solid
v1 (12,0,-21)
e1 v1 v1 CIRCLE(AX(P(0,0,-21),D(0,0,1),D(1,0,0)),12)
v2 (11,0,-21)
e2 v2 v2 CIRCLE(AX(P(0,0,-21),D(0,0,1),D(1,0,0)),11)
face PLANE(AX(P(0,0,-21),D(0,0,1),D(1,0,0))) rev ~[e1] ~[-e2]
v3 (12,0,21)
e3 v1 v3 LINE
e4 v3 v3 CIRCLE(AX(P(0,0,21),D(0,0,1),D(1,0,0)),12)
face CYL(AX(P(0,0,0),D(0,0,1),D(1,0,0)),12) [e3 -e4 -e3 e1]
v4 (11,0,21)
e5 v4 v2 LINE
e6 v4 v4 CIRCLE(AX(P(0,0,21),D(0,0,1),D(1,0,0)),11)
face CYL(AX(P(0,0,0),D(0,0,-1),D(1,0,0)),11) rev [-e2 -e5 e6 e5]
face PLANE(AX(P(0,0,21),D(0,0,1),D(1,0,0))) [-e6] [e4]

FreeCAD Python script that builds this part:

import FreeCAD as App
import Part
import Sketcher

V = App.Vector
Q = App.Units.Quantity

doc = App.newDocument("Part")
body = doc.addObject("PartDesign::Body", "Body")

# Sketch on XY plane
sketch1 = doc.addObject("Sketcher::SketchObject", "Sketch")
body.addObject(sketch1)
sketch1.AttachmentSupport = (doc.XY_Plane, [""])
sketch1.MapMode = "FlatFace"
sketch1.addGeometry([
    Part.Circle(V(0, 0, 0), V(0, 0, 1), 12),
    Part.Circle(V(0, 0, 0), V(0, 0, 1), 11),
], False)
sketch1.addConstraint([
    Sketcher.Constraint("Coincident", 0, 3, -1, 1),
    Sketcher.Constraint("Coincident", 1, 3, -1, 1),
    Sketcher.Constraint("Diameter", 0, Q("24 mm")),
    Sketcher.Constraint("Diameter", 1, Q("22 mm")),
])
pad1 = doc.addObject("PartDesign::Pad", "Pad")
body.addObject(pad1)
pad1.Profile = sketch1
pad1.Length = 42
pad1.Midplane = True

doc.recompute()
